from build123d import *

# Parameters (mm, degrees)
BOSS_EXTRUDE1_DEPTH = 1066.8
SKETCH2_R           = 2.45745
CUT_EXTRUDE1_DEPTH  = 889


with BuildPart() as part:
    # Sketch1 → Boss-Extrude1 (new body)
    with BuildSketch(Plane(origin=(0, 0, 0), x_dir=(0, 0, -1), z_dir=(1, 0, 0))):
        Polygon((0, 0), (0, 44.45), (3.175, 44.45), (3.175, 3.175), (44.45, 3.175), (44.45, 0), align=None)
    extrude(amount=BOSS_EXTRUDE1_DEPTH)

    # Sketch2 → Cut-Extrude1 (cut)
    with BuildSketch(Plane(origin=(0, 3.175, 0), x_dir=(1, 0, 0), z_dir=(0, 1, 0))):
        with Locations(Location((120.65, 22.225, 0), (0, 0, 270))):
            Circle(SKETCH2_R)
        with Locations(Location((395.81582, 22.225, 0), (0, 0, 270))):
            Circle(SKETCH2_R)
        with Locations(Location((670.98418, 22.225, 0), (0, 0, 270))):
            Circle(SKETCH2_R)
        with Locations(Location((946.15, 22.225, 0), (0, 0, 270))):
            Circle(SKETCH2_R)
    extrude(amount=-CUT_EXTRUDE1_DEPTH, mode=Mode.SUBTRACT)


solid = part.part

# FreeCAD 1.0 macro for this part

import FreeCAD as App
import Part
import Sketcher
Q = App.Units.Quantity


def add_polygon(sketch, points):
    """Adds a closed chain of lines whose ends are joined by coincident constraints."""
    first, n = sketch.GeometryCount, len(points)
    for a, b in zip(points, points[1:] + points[:1]):
        sketch.addGeometry(Part.LineSegment(App.Vector(*a, 0), App.Vector(*b, 0)), False)
    for i in range(n):
        sketch.addConstraint(Sketcher.Constraint("Coincident", first + i, 2, first + (i + 1) % n, 1))

doc = App.newDocument("Part")
body = doc.addObject("PartDesign::Body", "Body")

# Sketch on YZ plane
sketch1 = body.newObject("Sketcher::SketchObject", "Sketch")
sketch1.AttachmentSupport = (doc.getObject("YZ_Plane"), [""])
sketch1.MapMode = "FlatFace"
add_polygon(sketch1, [(44.45, 0), (0, 0), (0, -44.45), (3.175, -44.45), (3.175, -3.175), (44.45, -3.175)])  # lines 0-5
sketch1.addConstraint([
    Sketcher.Constraint("Horizontal", 0),
    Sketcher.Constraint("Vertical", 1),
    Sketcher.Constraint("Horizontal", 2),
    Sketcher.Constraint("Vertical", 3),
    Sketcher.Constraint("Horizontal", 4),
    Sketcher.Constraint("Vertical", 5),
    Sketcher.Constraint("Coincident", 0, 2, -1, 1),
    Sketcher.Constraint("Equal", 0, 1),
    Sketcher.Constraint("Equal", 4, 3),
    Sketcher.Constraint("DistanceX", 0, 2, 0, 1, Q("1.75 in")),
    Sketcher.Constraint("DistanceX", 2, 1, 2, 2, Q("0.125 in")),
])
pad1 = body.newObject("PartDesign::Pad", "Pad")
pad1.Profile = sketch1
pad1.Length = Q("42 in")

# Sketch on XZ plane
sketch2 = body.newObject("Sketcher::SketchObject", "Sketch001")
sketch2.AttachmentSupport = (doc.getObject("XZ_Plane"), [""])
sketch2.MapMode = "FlatFace"
sketch2.AttachmentOffset = App.Placement(App.Vector(0, 0, -0.125 * 25.4), App.Rotation())
sketch2.addGeometry([
    Part.Circle(App.Vector(120.65, -22.225, 0), App.Vector(0, 0, 1), 2.45745),
    Part.Circle(App.Vector(395.81582, -22.225, 0), App.Vector(0, 0, 1), 2.45745),
    Part.Circle(App.Vector(670.98418, -22.225, 0), App.Vector(0, 0, 1), 2.45745),
    Part.Circle(App.Vector(946.15, -22.225, 0), App.Vector(0, 0, 1), 2.45745),
], False)
sketch2.addConstraint([
    Sketcher.Constraint("Equal", 0, 1),
    Sketcher.Constraint("Equal", 1, 2),
    Sketcher.Constraint("Equal", 2, 3),
    Sketcher.Constraint("Horizontal", 0, 3, 1, 3),
    Sketcher.Constraint("Horizontal", 1, 3, 2, 3),
    Sketcher.Constraint("Horizontal", 2, 3, 3, 3),
    Sketcher.Constraint("Diameter", 0, Q("0.1935 in")),
    Sketcher.Constraint("DistanceX", 0, 3, 3, 3, Q("32.5 in")),
    Sketcher.Constraint("DistanceX", -1, 1, 0, 3, Q("4.75 in")),
    Sketcher.Constraint("DistanceY", 0, 3, -1, 1, Q("0.875 in")),
    Sketcher.Constraint("DistanceX", -1, 1, 1, 3, Q("15.5833 in")),
    Sketcher.Constraint("DistanceX", -1, 1, 2, 3, Q("26.4167 in")),
])
pocket1 = body.newObject("PartDesign::Pocket", "Pocket")
pocket1.Profile = sketch2
pocket1.Length = Q("35 in")
pocket1.Reversed = True

doc.recompute()
